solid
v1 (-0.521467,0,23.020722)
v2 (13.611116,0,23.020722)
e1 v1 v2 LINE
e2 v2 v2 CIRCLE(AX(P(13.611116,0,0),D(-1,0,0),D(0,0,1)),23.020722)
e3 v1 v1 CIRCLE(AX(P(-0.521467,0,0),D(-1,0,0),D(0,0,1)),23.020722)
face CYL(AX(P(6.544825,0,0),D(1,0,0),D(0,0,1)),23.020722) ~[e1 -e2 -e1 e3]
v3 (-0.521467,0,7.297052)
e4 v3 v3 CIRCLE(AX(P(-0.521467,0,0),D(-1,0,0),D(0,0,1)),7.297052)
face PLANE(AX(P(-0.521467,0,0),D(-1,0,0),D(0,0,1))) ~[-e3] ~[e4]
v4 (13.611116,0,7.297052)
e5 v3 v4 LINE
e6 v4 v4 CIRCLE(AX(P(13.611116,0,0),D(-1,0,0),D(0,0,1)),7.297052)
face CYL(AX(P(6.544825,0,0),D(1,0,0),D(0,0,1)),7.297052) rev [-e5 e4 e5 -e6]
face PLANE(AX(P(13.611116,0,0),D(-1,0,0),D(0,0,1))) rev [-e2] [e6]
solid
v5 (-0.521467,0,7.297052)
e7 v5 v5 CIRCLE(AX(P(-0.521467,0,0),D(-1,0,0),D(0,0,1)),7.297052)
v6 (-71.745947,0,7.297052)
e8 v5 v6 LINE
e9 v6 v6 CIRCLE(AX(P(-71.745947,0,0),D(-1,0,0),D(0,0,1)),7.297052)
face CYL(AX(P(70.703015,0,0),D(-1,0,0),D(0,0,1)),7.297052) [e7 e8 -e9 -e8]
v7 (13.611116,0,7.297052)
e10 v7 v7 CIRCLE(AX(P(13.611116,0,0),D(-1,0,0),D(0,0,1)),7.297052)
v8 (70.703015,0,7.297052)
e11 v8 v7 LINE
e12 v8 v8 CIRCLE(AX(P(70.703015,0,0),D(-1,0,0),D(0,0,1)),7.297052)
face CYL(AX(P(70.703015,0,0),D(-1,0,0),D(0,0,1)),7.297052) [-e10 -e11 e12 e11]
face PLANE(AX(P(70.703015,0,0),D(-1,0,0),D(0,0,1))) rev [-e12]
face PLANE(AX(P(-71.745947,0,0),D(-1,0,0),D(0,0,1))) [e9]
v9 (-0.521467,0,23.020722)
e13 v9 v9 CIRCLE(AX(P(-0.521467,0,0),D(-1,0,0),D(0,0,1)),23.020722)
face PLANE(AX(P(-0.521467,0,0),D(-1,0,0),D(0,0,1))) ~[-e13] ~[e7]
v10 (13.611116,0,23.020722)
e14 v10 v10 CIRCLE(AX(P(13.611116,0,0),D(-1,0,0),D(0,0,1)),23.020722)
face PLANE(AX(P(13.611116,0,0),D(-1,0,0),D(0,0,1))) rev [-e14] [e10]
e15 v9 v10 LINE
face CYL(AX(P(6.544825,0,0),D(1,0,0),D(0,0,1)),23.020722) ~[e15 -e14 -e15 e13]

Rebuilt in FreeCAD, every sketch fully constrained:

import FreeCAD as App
import Part
import Sketcher

V = App.Vector
Q = App.Units.Quantity


def add_polygon(sketch, points):
    """Adds a closed chain of lines whose ends are joined by coincident constraints."""
    first, n = sketch.GeometryCount, len(points)
    for a, b in zip(points, points[1:] + points[:1]):
        sketch.addGeometry(Part.LineSegment(App.Vector(*a, 0), App.Vector(*b, 0)), False)
    for i in range(n):
        sketch.addConstraint(Sketcher.Constraint("Coincident", first + i, 2, first + (i + 1) % n, 1))

doc = App.newDocument("Part")
body = doc.addObject("PartDesign::Body", "Body")

sketch1 = body.newObject("Sketcher::SketchObject", "Sketch")
sketch1.AttachmentSupport = (doc.getObject("XZ_Plane"), [""])
sketch1.MapMode = "FlatFace"
add_polygon(sketch1, [(-1, 23), (-1, 7), (14, 7), (14, 23)])
sketch1.addConstraint([
    Sketcher.Constraint("Vertical", 0),
    Sketcher.Constraint("Horizontal", 1),
    Sketcher.Constraint("Vertical", 2),
    Sketcher.Constraint("Horizontal", 3),
    Sketcher.Constraint("DistanceY", 0, 2, 0, 1, Q("15.72367 mm")),
    Sketcher.Constraint("DistanceX", 1, 1, 1, 2, Q("14.132583 mm")),
    Sketcher.Constraint("DistanceY", -1, 1, 2, 2, Q("23.020722 mm")),
    Sketcher.Constraint("DistanceX", 0, 2, -1, 1, Q("0.521467 mm")),
])
revolution = body.newObject("PartDesign::Revolution", "Revolution")
revolution.Profile = sketch1
revolution.ReferenceAxis = (sketch1, ["H_Axis"])
revolution.Angle = 360
body2 = doc.addObject("PartDesign::Body", "Body001")

sketch2 = body2.newObject("Sketcher::SketchObject", "Sketch001")
sketch2.AttachmentSupport = (doc.getObject("XZ_Plane001"), [""])
sketch2.MapMode = "FlatFace"
add_polygon(sketch2, [(71, 0), (71, 7), (14, 7), (14, 23), (-1, 23), (-1, 7), (-72, 7), (-72, 0)])
sketch2.addConstraint([
    Sketcher.Constraint("Vertical", 0),
    Sketcher.Constraint("Horizontal", 1),
    Sketcher.Constraint("Vertical", 2),
    Sketcher.Constraint("Horizontal", 3),
    Sketcher.Constraint("Vertical", 4),
    Sketcher.Constraint("Horizontal", 5),
    Sketcher.Constraint("Vertical", 6),
    Sketcher.Constraint("Horizontal", 7),
    Sketcher.Constraint("PointOnObject", 6, 2, -1),
    Sketcher.Constraint("Horizontal", 1, 2, 4, 2),
    Sketcher.Constraint("DistanceX", 1, 2, 1, 1, Q("57.091898 mm")),
    Sketcher.Constraint("DistanceX", 5, 2, 5, 1, Q("71.22448 mm")),
    Sketcher.Constraint("DistanceX", 7, 1, 7, 2, Q("142.448962 mm")),
    Sketcher.Constraint("DistanceY", 2, 1, 2, 2, Q("15.72367 mm")),
    Sketcher.Constraint("DistanceY", 0, 1, 0, 2, Q("7.297052 mm")),
    Sketcher.Constraint("DistanceX", -1, 1, 0, 2, Q("70.703015 mm")),
])
revolution2 = body2.newObject("PartDesign::Revolution", "Revolution001")
revolution2.Profile = sketch2
revolution2.ReferenceAxis = (sketch2, ["H_Axis"])
revolution2.Angle = 360

doc.recompute()
